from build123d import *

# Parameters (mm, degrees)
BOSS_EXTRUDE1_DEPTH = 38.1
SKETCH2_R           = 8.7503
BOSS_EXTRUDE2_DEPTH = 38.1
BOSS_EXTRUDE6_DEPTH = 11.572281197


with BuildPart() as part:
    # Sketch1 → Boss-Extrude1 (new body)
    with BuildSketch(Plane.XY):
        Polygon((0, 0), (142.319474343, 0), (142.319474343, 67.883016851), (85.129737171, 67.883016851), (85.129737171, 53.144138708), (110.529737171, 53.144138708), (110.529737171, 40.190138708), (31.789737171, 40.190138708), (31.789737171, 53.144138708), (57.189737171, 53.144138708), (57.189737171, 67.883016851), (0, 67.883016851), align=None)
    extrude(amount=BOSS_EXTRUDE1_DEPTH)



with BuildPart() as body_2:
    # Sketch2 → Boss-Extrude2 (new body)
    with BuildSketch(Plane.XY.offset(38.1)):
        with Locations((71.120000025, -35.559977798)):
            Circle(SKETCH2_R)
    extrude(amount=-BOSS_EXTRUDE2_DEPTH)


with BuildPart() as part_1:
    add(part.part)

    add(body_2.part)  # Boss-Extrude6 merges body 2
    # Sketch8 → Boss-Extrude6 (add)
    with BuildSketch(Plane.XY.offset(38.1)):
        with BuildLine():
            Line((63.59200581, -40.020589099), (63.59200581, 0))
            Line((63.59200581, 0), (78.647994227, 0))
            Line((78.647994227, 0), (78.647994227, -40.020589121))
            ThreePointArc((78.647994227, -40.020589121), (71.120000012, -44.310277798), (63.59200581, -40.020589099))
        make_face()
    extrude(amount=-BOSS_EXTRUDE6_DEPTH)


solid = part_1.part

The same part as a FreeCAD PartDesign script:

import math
import FreeCAD as App
import Part
import Sketcher
Q = App.Units.Quantity

doc = App.newDocument("Part")
body = doc.addObject("PartDesign::Body", "Body")

sketch1 = body.newObject("Sketcher::SketchObject", "Sketch")
sketch1.AttachmentSupport = (doc.getObject("XY_Plane"), [""])
sketch1.MapMode = "FlatFace"
sketch1.addGeometry(Part.LineSegment(App.Vector(0, 0, 0), App.Vector(142, 0, 0)), False)
sketch1.addGeometry(Part.LineSegment(App.Vector(142, 0, 0), App.Vector(142, 68, 0)), False)
sketch1.addGeometry(Part.LineSegment(App.Vector(142, 68, 0), App.Vector(85, 68, 0)), False)
sketch1.addGeometry(Part.LineSegment(App.Vector(85, 68, 0), App.Vector(85, 53, 0)), False)
sketch1.addGeometry(Part.LineSegment(App.Vector(85, 53, 0), App.Vector(111, 53, 0)), False)
sketch1.addGeometry(Part.LineSegment(App.Vector(111, 53, 0), App.Vector(111, 40, 0)), False)
sketch1.addGeometry(Part.LineSegment(App.Vector(111, 40, 0), App.Vector(32, 40, 0)), False)
sketch1.addGeometry(Part.LineSegment(App.Vector(32, 40, 0), App.Vector(32, 53, 0)), False)
sketch1.addGeometry(Part.LineSegment(App.Vector(32, 53, 0), App.Vector(57, 53, 0)), False)
sketch1.addGeometry(Part.LineSegment(App.Vector(57, 53, 0), App.Vector(57, 68, 0)), False)
sketch1.addGeometry(Part.LineSegment(App.Vector(57, 68, 0), App.Vector(0, 68, 0)), False)
sketch1.addGeometry(Part.LineSegment(App.Vector(0, 68, 0), App.Vector(0, 0, 0)), False)
sketch1.addConstraint(Sketcher.Constraint("Coincident", 0, 2, 1, 1))
sketch1.addConstraint(Sketcher.Constraint("Coincident", 1, 2, 2, 1))
sketch1.addConstraint(Sketcher.Constraint("Coincident", 2, 2, 3, 1))
sketch1.addConstraint(Sketcher.Constraint("Coincident", 3, 2, 4, 1))
sketch1.addConstraint(Sketcher.Constraint("Coincident", 4, 2, 5, 1))
sketch1.addConstraint(Sketcher.Constraint("Coincident", 5, 2, 6, 1))
sketch1.addConstraint(Sketcher.Constraint("Coincident", 6, 2, 7, 1))
sketch1.addConstraint(Sketcher.Constraint("Coincident", 7, 2, 8, 1))
sketch1.addConstraint(Sketcher.Constraint("Coincident", 8, 2, 9, 1))
sketch1.addConstraint(Sketcher.Constraint("Coincident", 9, 2, 10, 1))
sketch1.addConstraint(Sketcher.Constraint("Coincident", 10, 2, 11, 1))
sketch1.addConstraint(Sketcher.Constraint("Coincident", 11, 2, 0, 1))
sketch1.addConstraint(Sketcher.Constraint("Horizontal", 0))
sketch1.addConstraint(Sketcher.Constraint("Vertical", 1))
sketch1.addConstraint(Sketcher.Constraint("Horizontal", 2))
sketch1.addConstraint(Sketcher.Constraint("Vertical", 3))
sketch1.addConstraint(Sketcher.Constraint("Horizontal", 4))
sketch1.addConstraint(Sketcher.Constraint("Vertical", 5))
sketch1.addConstraint(Sketcher.Constraint("Horizontal", 6))
sketch1.addConstraint(Sketcher.Constraint("Vertical", 7))
sketch1.addConstraint(Sketcher.Constraint("Horizontal", 8))
sketch1.addConstraint(Sketcher.Constraint("Vertical", 9))
sketch1.addConstraint(Sketcher.Constraint("Horizontal", 10))
sketch1.addConstraint(Sketcher.Constraint("Vertical", 11))
sketch1.addConstraint(Sketcher.Constraint("Coincident", 11, 2, -1, 1))
sketch1.addConstraint(Sketcher.Constraint("Horizontal", 4, 2, 7, 2))
sketch1.addConstraint(Sketcher.Constraint("Horizontal", 2, 2, 9, 2))
sketch1.addConstraint(Sketcher.Constraint("Equal", 4, 8))
sketch1.addConstraint(Sketcher.Constraint("Equal", 2, 10))
sketch1.addConstraint(Sketcher.Constraint("DistanceX", 4, 1, 4, 2, Q("1 in")))
sketch1.addConstraint(Sketcher.Constraint("DistanceX", 6, 2, 6, 1, Q("3.1 in")))
sketch1.addConstraint(Sketcher.Constraint("DistanceY", 5, 2, 5, 1, Q("0.51 in")))
sketch1.addConstraint(Sketcher.Constraint("DistanceY", 3, 2, 3, 1, 14.738878))
sketch1.addConstraint(Sketcher.Constraint("DistanceX", 0, 1, 0, 2, 142.319474))
sketch1.addConstraint(Sketcher.Constraint("DistanceY", 1, 1, 1, 2, 67.883017))
pad1 = body.newObject("PartDesign::Pad", "Pad")
pad1.Profile = sketch1
pad1.Length = Q("1.5 in")
body2 = doc.addObject("PartDesign::Body", "Body001")

sketch2 = body2.newObject("Sketcher::SketchObject", "Sketch001")
sketch2.AttachmentSupport = (doc.getObject("XY_Plane001"), [""])
sketch2.MapMode = "FlatFace"
sketch2.AttachmentOffset = App.Placement(App.Vector(0, 0, 1.5 * 25.4), App.Rotation())
sketch2.addGeometry(Part.Circle(App.Vector(71, -36, 0), App.Vector(0, 0, 1), 9), False)
sketch2.addConstraint(Sketcher.Constraint("Diameter", 0, Q("0.689 in")))
sketch2.addConstraint(Sketcher.Constraint("DistanceX", -1, 1, 0, 3, Q("2.8 in")))
sketch2.addConstraint(Sketcher.Constraint("DistanceY", 0, 3, -1, 1, 35.559978))
pad2 = body2.newObject("PartDesign::Pad", "Pad001")
pad2.Profile = sketch2
pad2.Length = Q("1.5 in")
pad2.Reversed = True
body.AllowCompound = True
doc.recompute()

boolean = body.newObject("PartDesign::Boolean", "Boolean")
boolean.Type = "Fuse"
boolean.addObjects([body2])

sketch3 = body.newObject("Sketcher::SketchObject", "Sketch002")
sketch3.AttachmentSupport = (doc.getObject("XY_Plane"), [""])
sketch3.MapMode = "FlatFace"
sketch3.AttachmentOffset = App.Placement(App.Vector(0, 0, 1.5 * 25.4), App.Rotation())
sketch3.addGeometry(Part.LineSegment(App.Vector(64, 0, 0), App.Vector(64, -40, 0)), False)
sketch3.addGeometry(Part.ArcOfCircle(Part.Circle(App.Vector(71, -36, 0), App.Vector(0, 0, 1), 9), math.radians(-149), math.radians(-31)), False)
sketch3.addGeometry(Part.LineSegment(App.Vector(79, -40, 0), App.Vector(79, 0, 0)), False)
sketch3.addGeometry(Part.LineSegment(App.Vector(79, 0, 0), App.Vector(64, 0, 0)), False)
sketch3.addConstraint(Sketcher.Constraint("Coincident", 0, 2, 1, 1))
sketch3.addConstraint(Sketcher.Constraint("Coincident", 1, 2, 2, 1))
sketch3.addConstraint(Sketcher.Constraint("Coincident", 2, 2, 3, 1))
sketch3.addConstraint(Sketcher.Constraint("Coincident", 3, 2, 0, 1))
sketch3.addConstraint(Sketcher.Constraint("Vertical", 0))
sketch3.addConstraint(Sketcher.Constraint("Vertical", 2))
sketch3.addConstraint(Sketcher.Constraint("Horizontal", 3))
sketch3.addConstraint(Sketcher.Constraint("PointOnObject", 2, 2, -1))
sketch3.addConstraint(Sketcher.Constraint("Horizontal", 0, 2, 1, 2))
sketch3.addConstraint(Sketcher.Constraint("DistanceX", -1, 1, 1, 3, Q("2.8 in")))
sketch3.addConstraint(Sketcher.Constraint("Radius", 1, Q("0.3445 in")))
sketch3.addConstraint(Sketcher.Constraint("DistanceX", 3, 2, 3, 1, 15.055988))
sketch3.addConstraint(Sketcher.Constraint("DistanceY", 0, 2, 0, 1, 40.020589))
pad3 = body.newObject("PartDesign::Pad", "Pad002")
pad3.Profile = sketch3
pad3.Length = 11.572281
pad3.Reversed = True

doc.recompute()
